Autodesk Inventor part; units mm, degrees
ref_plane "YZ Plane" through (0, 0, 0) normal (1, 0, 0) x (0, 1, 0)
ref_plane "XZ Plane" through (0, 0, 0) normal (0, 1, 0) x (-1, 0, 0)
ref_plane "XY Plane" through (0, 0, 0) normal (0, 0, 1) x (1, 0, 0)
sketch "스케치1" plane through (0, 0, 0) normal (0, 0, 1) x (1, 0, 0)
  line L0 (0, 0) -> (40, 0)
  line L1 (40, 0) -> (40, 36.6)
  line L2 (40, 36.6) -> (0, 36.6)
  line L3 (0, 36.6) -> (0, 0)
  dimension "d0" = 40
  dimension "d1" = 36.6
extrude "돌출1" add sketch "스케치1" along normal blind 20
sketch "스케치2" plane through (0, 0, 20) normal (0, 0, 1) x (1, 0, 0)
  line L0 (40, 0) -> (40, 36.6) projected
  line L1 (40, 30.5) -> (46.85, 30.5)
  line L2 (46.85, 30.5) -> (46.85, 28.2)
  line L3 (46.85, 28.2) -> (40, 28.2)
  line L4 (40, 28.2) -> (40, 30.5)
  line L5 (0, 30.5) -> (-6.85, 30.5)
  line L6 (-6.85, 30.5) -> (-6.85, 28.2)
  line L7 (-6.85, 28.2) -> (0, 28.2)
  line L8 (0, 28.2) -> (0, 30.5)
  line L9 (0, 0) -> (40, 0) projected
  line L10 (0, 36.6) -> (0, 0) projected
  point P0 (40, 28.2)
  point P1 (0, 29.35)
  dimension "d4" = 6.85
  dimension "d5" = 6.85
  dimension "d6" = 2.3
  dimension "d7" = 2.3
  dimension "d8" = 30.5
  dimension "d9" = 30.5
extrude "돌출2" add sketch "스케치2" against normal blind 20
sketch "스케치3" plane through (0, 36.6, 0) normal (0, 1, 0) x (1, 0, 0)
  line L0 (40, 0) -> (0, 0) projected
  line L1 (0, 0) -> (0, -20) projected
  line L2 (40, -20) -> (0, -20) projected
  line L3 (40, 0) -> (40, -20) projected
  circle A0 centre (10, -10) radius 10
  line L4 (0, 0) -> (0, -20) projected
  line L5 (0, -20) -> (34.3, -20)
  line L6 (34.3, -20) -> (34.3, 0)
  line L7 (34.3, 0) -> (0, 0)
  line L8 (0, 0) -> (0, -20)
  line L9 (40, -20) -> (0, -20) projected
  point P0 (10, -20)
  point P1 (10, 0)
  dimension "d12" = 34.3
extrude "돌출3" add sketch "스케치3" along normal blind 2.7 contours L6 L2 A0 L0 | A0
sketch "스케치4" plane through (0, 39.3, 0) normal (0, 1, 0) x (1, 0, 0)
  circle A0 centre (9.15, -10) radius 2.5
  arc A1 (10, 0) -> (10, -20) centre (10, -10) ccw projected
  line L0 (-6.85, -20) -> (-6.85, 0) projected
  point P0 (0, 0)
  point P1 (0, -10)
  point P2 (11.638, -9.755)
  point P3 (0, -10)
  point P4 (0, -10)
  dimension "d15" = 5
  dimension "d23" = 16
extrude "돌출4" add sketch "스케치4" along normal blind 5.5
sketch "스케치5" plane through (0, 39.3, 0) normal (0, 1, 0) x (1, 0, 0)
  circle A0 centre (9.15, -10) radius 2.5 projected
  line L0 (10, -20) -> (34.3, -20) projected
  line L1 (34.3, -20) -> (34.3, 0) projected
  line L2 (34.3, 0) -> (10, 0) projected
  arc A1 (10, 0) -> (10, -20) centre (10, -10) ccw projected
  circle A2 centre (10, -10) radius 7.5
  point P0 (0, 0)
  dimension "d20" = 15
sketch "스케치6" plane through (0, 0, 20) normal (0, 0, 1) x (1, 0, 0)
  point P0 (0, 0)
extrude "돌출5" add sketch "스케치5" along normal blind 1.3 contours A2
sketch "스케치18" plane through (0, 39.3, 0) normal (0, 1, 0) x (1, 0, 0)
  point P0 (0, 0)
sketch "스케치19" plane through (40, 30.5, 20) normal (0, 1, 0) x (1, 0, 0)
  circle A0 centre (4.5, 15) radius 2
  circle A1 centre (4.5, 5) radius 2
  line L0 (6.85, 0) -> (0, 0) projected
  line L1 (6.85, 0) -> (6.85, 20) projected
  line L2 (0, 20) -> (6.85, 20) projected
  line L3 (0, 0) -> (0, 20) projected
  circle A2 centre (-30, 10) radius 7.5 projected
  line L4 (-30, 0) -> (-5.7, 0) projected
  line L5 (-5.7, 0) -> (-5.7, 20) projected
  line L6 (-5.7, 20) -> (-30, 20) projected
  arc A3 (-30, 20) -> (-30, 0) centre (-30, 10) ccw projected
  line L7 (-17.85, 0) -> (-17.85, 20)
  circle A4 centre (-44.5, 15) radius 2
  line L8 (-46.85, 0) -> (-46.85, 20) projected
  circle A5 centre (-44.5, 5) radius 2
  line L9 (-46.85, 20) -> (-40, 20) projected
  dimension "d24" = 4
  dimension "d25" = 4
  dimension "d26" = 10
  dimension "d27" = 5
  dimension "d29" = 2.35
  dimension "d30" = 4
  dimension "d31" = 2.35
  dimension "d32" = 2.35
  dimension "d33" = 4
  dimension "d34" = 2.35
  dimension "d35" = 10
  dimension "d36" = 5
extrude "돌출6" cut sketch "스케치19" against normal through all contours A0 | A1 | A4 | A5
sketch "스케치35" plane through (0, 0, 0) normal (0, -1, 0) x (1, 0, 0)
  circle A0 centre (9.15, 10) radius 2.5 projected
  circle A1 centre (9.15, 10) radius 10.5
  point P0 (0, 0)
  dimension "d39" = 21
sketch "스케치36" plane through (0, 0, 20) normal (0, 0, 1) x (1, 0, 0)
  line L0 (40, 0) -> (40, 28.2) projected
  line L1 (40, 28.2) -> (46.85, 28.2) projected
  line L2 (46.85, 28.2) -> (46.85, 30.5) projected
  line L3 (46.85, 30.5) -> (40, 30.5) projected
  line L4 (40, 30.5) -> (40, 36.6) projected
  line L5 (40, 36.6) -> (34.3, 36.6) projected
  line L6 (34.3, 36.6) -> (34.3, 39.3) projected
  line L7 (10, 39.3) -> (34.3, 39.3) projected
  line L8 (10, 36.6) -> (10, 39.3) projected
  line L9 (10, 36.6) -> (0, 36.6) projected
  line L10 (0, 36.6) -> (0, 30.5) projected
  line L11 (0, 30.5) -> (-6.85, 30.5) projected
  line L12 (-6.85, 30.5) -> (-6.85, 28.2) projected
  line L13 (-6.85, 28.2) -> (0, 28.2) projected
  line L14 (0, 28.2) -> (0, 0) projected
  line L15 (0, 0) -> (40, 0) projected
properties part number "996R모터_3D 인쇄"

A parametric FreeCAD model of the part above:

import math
import FreeCAD as App
import Part
import Sketcher
Q = App.Units.Quantity

doc = App.newDocument("Part")
body = doc.addObject("PartDesign::Body", "Body")

sketch1 = body.newObject("Sketcher::SketchObject", "Sketch")
sketch1.AttachmentSupport = (doc.getObject("XY_Plane"), [""])
sketch1.MapMode = "FlatFace"
sketch1.addGeometry([
    Part.LineSegment(App.Vector(0, 36.6, 0), App.Vector(0, 0, 0)),
    Part.LineSegment(App.Vector(0, 0, 0), App.Vector(40, 0, 0)),
    Part.LineSegment(App.Vector(40, 0, 0), App.Vector(40, 36.6, 0)),
    Part.LineSegment(App.Vector(40, 36.6, 0), App.Vector(0, 36.6, 0)),
], False)
sketch1.addConstraint([
    Sketcher.Constraint("Coincident", 0, 2, 1, 1),
    Sketcher.Constraint("Coincident", 1, 2, 2, 1),
    Sketcher.Constraint("Coincident", 2, 2, 3, 1),
    Sketcher.Constraint("Coincident", 3, 2, 0, 1),
    Sketcher.Constraint("Vertical", 0),
    Sketcher.Constraint("Horizontal", 1),
    Sketcher.Constraint("Vertical", 2),
    Sketcher.Constraint("Horizontal", 3),
    Sketcher.Constraint("Coincident", 0, 2, -1, 1),
    Sketcher.Constraint("DistanceX", 1, 1, 1, 2, Q("40 mm")),
    Sketcher.Constraint("DistanceY", 0, 2, 0, 1, Q("36.6 mm")),
])
pad1 = body.newObject("PartDesign::Pad", "Pad")
pad1.Profile = sketch1
pad1.Length = 20

sketch2 = body.newObject("Sketcher::SketchObject", "Sketch001")
sketch2.AttachmentSupport = (doc.getObject("XY_Plane"), [""])
sketch2.MapMode = "FlatFace"
sketch2.AttachmentOffset = App.Placement(App.Vector(0, 0, 20), App.Rotation())
sketch2.addGeometry([
    Part.LineSegment(App.Vector(40, 30.5, 0), App.Vector(40, 28.2, 0)),
    Part.LineSegment(App.Vector(40, 28.2, 0), App.Vector(46.85, 28.2, 0)),
    Part.LineSegment(App.Vector(46.85, 28.2, 0), App.Vector(46.85, 30.5, 0)),
    Part.LineSegment(App.Vector(46.85, 30.5, 0), App.Vector(40, 30.5, 0)),
    Part.LineSegment(App.Vector(-6.85, 28.2, 0), App.Vector(0, 28.2, 0)),
    Part.LineSegment(App.Vector(0, 28.2, 0), App.Vector(0, 30.5, 0)),
    Part.LineSegment(App.Vector(0, 30.5, 0), App.Vector(-6.85, 30.5, 0)),
    Part.LineSegment(App.Vector(-6.85, 30.5, 0), App.Vector(-6.85, 28.2, 0)),
], False)
sketch2.addConstraint([
    Sketcher.Constraint("Coincident", 0, 2, 1, 1),
    Sketcher.Constraint("Coincident", 1, 2, 2, 1),
    Sketcher.Constraint("Coincident", 2, 2, 3, 1),
    Sketcher.Constraint("Coincident", 3, 2, 0, 1),
    Sketcher.Constraint("Coincident", 4, 2, 5, 1),
    Sketcher.Constraint("Coincident", 5, 2, 6, 1),
    Sketcher.Constraint("Coincident", 6, 2, 7, 1),
    Sketcher.Constraint("Coincident", 7, 2, 4, 1),
    Sketcher.Constraint("Vertical", 0),
    Sketcher.Constraint("Horizontal", 1),
    Sketcher.Constraint("Vertical", 2),
    Sketcher.Constraint("Horizontal", 3),
    Sketcher.Constraint("Horizontal", 4),
    Sketcher.Constraint("Vertical", 5),
    Sketcher.Constraint("Horizontal", 6),
    Sketcher.Constraint("Vertical", 7),
    Sketcher.Constraint("PointOnObject", 4, 2, -2),
    Sketcher.Constraint("Horizontal", 1, 2, 4, 2),
    Sketcher.Constraint("Horizontal", 3, 2, 5, 2),
    Sketcher.Constraint("Equal", 3, 4),
    Sketcher.Constraint("DistanceY", 0, 2, 0, 1, Q("2.3 mm")),
    Sketcher.Constraint("DistanceX", 1, 1, 1, 2, Q("6.85 mm")),
    Sketcher.Constraint("DistanceY", -1, 1, 2, 2, Q("30.5 mm")),
    Sketcher.Constraint("DistanceX", -1, 1, 0, 2, Q("40 mm")),
])
pad2 = body.newObject("PartDesign::Pad", "Pad001")
pad2.Profile = sketch2
pad2.Length = 20
pad2.Reversed = True

sketch3 = body.newObject("Sketcher::SketchObject", "Sketch002")
sketch3.AttachmentSupport = (doc.getObject("XZ_Plane"), [""])
sketch3.MapMode = "FlatFace"
sketch3.AttachmentOffset = App.Placement(App.Vector(0, 0, -36.6), App.Rotation())
sketch3.addGeometry([
    Part.LineSegment(App.Vector(34.3, 20, 0), App.Vector(34.3, 0, 0)),
    Part.LineSegment(App.Vector(34.3, 0, 0), App.Vector(10, 0, 0)),
    Part.ArcOfCircle(Part.Circle(App.Vector(10, 10, 0), App.Vector(0, 0, 1), 10), math.radians(90), math.radians(270)),
    Part.LineSegment(App.Vector(10, 20, 0), App.Vector(34.3, 20, 0)),
], False)
sketch3.addConstraint([
    Sketcher.Constraint("Coincident", 0, 2, 1, 1),
    Sketcher.Constraint("Tangent", 1, 2, 2, 2),
    Sketcher.Constraint("Tangent", 2, 1, 3, 1),
    Sketcher.Constraint("Coincident", 3, 2, 0, 1),
    Sketcher.Constraint("Vertical", 0),
    Sketcher.Constraint("Horizontal", 1),
    Sketcher.Constraint("Horizontal", 3),
    Sketcher.Constraint("PointOnObject", 0, 2, -1),
    Sketcher.Constraint("Radius", 2, Q("10 mm")),
    Sketcher.Constraint("DistanceX", -1, 1, 0, 2, Q("34.3 mm")),
    Sketcher.Constraint("DistanceX", 1, 2, 1, 1, Q("24.3 mm")),
])
pad3 = body.newObject("PartDesign::Pad", "Pad002")
pad3.Profile = sketch3
pad3.Length = 2.7
pad3.Reversed = True

sketch4 = body.newObject("Sketcher::SketchObject", "Sketch003")
sketch4.AttachmentSupport = (doc.getObject("XZ_Plane"), [""])
sketch4.MapMode = "FlatFace"
sketch4.AttachmentOffset = App.Placement(App.Vector(0, 0, -39.3), App.Rotation())
sketch4.addGeometry(Part.Circle(App.Vector(9.15, 10, 0), App.Vector(0, 0, 1), 2.5), False)
sketch4.addConstraint([
    Sketcher.Constraint("Diameter", 0, Q("5 mm")),
    Sketcher.Constraint("DistanceY", -1, 1, 0, 3, Q("10 mm")),
    Sketcher.Constraint("DistanceX", -1, 1, 0, 3, Q("9.15 mm")),
])
pad4 = body.newObject("PartDesign::Pad", "Pad003")
pad4.Profile = sketch4
pad4.Length = 5.5
pad4.Reversed = True

sketch5 = body.newObject("Sketcher::SketchObject", "Sketch004")
sketch5.AttachmentSupport = (doc.getObject("XZ_Plane"), [""])
sketch5.MapMode = "FlatFace"
sketch5.AttachmentOffset = App.Placement(App.Vector(0, 0, -39.3), App.Rotation())
sketch5.addGeometry([
    Part.Circle(App.Vector(10, 10, 0), App.Vector(0, 0, 1), 7.5),
    Part.Circle(App.Vector(9.15, 10, 0), App.Vector(0, 0, 1), 2.5),
], False)
sketch5.addConstraint([
    Sketcher.Constraint("Horizontal", 0, 3, 1, 3),
    Sketcher.Constraint("Diameter", 0, Q("15 mm")),
    Sketcher.Constraint("Diameter", 1, Q("5 mm")),
    Sketcher.Constraint("DistanceX", -1, 1, 0, 3, Q("10 mm")),
    Sketcher.Constraint("DistanceY", -1, 1, 0, 3, Q("10 mm")),
    Sketcher.Constraint("DistanceX", -1, 1, 1, 3, Q("9.15 mm")),
])
pad5 = body.newObject("PartDesign::Pad", "Pad004")
pad5.Profile = sketch5
pad5.Length = 1.3
pad5.Reversed = True

sketch6 = body.newObject("Sketcher::SketchObject", "Sketch005")
sketch6.AttachmentSupport = (doc.getObject("XZ_Plane"), [""])
sketch6.MapMode = "FlatFace"
sketch6.AttachmentOffset = App.Placement(App.Vector(0, 0, -30.5), App.Rotation())
sketch6.addGeometry([
    Part.Circle(App.Vector(44.5, 5, 0), App.Vector(0, 0, 1), 2),
    Part.Circle(App.Vector(44.5, 15, 0), App.Vector(0, 0, 1), 2),
    Part.Circle(App.Vector(-4.5, 5, 0), App.Vector(0, 0, 1), 2),
    Part.Circle(App.Vector(-4.5, 15, 0), App.Vector(0, 0, 1), 2),
], False)
sketch6.addConstraint([
    Sketcher.Constraint("Equal", 0, 1),
    Sketcher.Constraint("Equal", 1, 2),
    Sketcher.Constraint("Equal", 2, 3),
    Sketcher.Constraint("Horizontal", 0, 3, 2, 3),
    Sketcher.Constraint("Horizontal", 1, 3, 3, 3),
    Sketcher.Constraint("Vertical", 0, 3, 1, 3),
    Sketcher.Constraint("Vertical", 2, 3, 3, 3),
    Sketcher.Constraint("Diameter", 0, Q("4 mm")),
    Sketcher.Constraint("DistanceY", -1, 1, 0, 3, Q("5 mm")),
    Sketcher.Constraint("DistanceY", 0, 3, 1, 3, Q("10 mm")),
    Sketcher.Constraint("DistanceX", 2, 3, 0, 3, Q("49 mm")),
    Sketcher.Constraint("DistanceX", -1, 1, 0, 3, Q("44.5 mm")),
])
pocket1 = body.newObject("PartDesign::Pocket", "Pocket")
pocket1.Profile = sketch6
pocket1.Type = "ThroughAll"
pocket1.Reversed = True

doc.recompute()
